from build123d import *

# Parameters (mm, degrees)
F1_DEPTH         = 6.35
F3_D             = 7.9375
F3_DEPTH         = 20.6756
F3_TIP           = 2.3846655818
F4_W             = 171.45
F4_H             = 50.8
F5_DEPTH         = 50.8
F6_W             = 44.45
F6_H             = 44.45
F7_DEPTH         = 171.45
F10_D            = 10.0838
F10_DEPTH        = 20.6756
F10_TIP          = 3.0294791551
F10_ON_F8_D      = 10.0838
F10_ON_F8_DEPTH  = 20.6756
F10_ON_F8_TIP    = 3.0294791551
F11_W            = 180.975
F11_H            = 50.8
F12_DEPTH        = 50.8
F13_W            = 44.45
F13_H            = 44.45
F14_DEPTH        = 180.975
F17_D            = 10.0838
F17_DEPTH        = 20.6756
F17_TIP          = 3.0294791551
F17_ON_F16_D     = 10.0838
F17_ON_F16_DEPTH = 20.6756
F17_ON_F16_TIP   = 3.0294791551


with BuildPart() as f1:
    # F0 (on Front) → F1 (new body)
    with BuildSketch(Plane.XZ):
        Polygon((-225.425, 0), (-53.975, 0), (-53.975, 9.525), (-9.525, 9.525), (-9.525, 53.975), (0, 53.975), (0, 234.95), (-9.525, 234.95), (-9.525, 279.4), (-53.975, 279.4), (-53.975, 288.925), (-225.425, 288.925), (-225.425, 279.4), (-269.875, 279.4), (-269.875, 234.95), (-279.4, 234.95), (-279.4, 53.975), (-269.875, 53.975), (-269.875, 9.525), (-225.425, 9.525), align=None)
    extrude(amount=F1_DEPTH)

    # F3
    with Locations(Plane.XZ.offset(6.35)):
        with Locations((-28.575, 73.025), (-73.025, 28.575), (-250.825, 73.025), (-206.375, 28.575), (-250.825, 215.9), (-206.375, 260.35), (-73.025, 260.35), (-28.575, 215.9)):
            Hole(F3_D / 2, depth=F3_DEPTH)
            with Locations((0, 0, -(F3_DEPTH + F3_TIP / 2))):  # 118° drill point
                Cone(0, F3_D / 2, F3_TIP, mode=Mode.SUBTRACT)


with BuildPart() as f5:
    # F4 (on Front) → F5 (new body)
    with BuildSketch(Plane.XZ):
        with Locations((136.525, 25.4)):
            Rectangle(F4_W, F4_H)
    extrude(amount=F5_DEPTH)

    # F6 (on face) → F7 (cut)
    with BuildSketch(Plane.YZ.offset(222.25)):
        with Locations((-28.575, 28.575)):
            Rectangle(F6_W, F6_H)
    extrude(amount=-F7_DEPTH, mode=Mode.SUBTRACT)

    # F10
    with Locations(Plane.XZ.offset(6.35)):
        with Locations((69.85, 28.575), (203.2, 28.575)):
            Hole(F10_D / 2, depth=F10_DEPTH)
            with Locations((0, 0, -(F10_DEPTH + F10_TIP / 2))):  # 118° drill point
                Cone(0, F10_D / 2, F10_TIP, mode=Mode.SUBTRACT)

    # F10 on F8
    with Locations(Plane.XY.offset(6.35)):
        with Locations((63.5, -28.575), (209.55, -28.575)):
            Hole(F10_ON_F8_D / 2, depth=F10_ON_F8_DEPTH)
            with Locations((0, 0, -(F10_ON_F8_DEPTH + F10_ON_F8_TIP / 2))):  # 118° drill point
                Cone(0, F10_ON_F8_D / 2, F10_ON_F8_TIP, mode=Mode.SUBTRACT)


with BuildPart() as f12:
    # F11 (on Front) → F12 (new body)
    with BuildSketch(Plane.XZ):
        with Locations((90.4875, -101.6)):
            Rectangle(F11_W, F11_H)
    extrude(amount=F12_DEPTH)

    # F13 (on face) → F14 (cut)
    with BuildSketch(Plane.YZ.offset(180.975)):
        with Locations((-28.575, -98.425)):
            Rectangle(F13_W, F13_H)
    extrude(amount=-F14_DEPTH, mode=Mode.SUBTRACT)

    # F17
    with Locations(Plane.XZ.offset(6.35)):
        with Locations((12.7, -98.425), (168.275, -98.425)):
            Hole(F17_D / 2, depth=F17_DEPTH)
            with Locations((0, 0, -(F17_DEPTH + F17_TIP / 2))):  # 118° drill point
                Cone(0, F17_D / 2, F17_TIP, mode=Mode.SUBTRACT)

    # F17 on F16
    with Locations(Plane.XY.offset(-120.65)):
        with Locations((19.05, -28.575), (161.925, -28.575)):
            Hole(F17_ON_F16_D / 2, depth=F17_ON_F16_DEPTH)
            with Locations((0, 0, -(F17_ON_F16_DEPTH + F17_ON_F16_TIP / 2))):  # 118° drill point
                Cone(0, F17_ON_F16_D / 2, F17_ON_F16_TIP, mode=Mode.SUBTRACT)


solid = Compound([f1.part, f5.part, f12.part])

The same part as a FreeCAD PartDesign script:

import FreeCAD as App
import Part
import Sketcher
from FreeCAD import Vector
Q = App.Units.Quantity

doc = App.newDocument("Part")
body = doc.addObject("PartDesign::Body", "Body")

sketch1 = doc.addObject("Sketcher::SketchObject", "Sketch")
body.addObject(sketch1)
sketch1.AttachmentSupport = (doc.XZ_Plane, [""])
sketch1.MapMode = "FlatFace"
sketch1.addGeometry([
    Part.LineSegment(Vector(-225, 0, 0), Vector(-54, 0, 0)),
    Part.LineSegment(Vector(-54, 0, 0), Vector(-54, 10, 0)),
    Part.LineSegment(Vector(-54, 10, 0), Vector(-10, 10, 0)),
    Part.LineSegment(Vector(-10, 10, 0), Vector(-10, 54, 0)),
    Part.LineSegment(Vector(-10, 54, 0), Vector(0, 54, 0)),
    Part.LineSegment(Vector(0, 54, 0), Vector(0, 235, 0)),
    Part.LineSegment(Vector(0, 235, 0), Vector(-10, 235, 0)),
    Part.LineSegment(Vector(-10, 235, 0), Vector(-10, 279, 0)),
    Part.LineSegment(Vector(-10, 279, 0), Vector(-54, 279, 0)),
    Part.LineSegment(Vector(-54, 279, 0), Vector(-54, 289, 0)),
    Part.LineSegment(Vector(-54, 289, 0), Vector(-225, 289, 0)),
    Part.LineSegment(Vector(-225, 289, 0), Vector(-225, 279, 0)),
    Part.LineSegment(Vector(-225, 279, 0), Vector(-270, 279, 0)),
    Part.LineSegment(Vector(-270, 279, 0), Vector(-270, 235, 0)),
    Part.LineSegment(Vector(-270, 235, 0), Vector(-279, 235, 0)),
    Part.LineSegment(Vector(-279, 235, 0), Vector(-279, 54, 0)),
    Part.LineSegment(Vector(-279, 54, 0), Vector(-270, 54, 0)),
    Part.LineSegment(Vector(-270, 54, 0), Vector(-270, 10, 0)),
    Part.LineSegment(Vector(-270, 10, 0), Vector(-225, 10, 0)),
    Part.LineSegment(Vector(-225, 10, 0), Vector(-225, 0, 0)),
], False)
sketch1.addConstraint([
    Sketcher.Constraint("Coincident", 0, 2, 1, 1),
    Sketcher.Constraint("Coincident", 1, 2, 2, 1),
    Sketcher.Constraint("Coincident", 2, 2, 3, 1),
    Sketcher.Constraint("Coincident", 3, 2, 4, 1),
    Sketcher.Constraint("Coincident", 4, 2, 5, 1),
    Sketcher.Constraint("Coincident", 5, 2, 6, 1),
    Sketcher.Constraint("Coincident", 6, 2, 7, 1),
    Sketcher.Constraint("Coincident", 7, 2, 8, 1),
    Sketcher.Constraint("Coincident", 8, 2, 9, 1),
    Sketcher.Constraint("Coincident", 9, 2, 10, 1),
    Sketcher.Constraint("Coincident", 10, 2, 11, 1),
    Sketcher.Constraint("Coincident", 11, 2, 12, 1),
    Sketcher.Constraint("Coincident", 12, 2, 13, 1),
    Sketcher.Constraint("Coincident", 13, 2, 14, 1),
    Sketcher.Constraint("Coincident", 14, 2, 15, 1),
    Sketcher.Constraint("Coincident", 15, 2, 16, 1),
    Sketcher.Constraint("Coincident", 16, 2, 17, 1),
    Sketcher.Constraint("Coincident", 17, 2, 18, 1),
    Sketcher.Constraint("Coincident", 18, 2, 19, 1),
    Sketcher.Constraint("Coincident", 19, 2, 0, 1),
    Sketcher.Constraint("Horizontal", 0),
    Sketcher.Constraint("Vertical", 1),
    Sketcher.Constraint("Horizontal", 2),
    Sketcher.Constraint("Vertical", 3),
    Sketcher.Constraint("Horizontal", 4),
    Sketcher.Constraint("Vertical", 5),
    Sketcher.Constraint("Horizontal", 6),
    Sketcher.Constraint("Vertical", 7),
    Sketcher.Constraint("Horizontal", 8),
    Sketcher.Constraint("Vertical", 9),
    Sketcher.Constraint("Horizontal", 10),
    Sketcher.Constraint("Vertical", 11),
    Sketcher.Constraint("Horizontal", 12),
    Sketcher.Constraint("Vertical", 13),
    Sketcher.Constraint("Horizontal", 14),
    Sketcher.Constraint("Vertical", 15),
    Sketcher.Constraint("Horizontal", 16),
    Sketcher.Constraint("Vertical", 17),
    Sketcher.Constraint("Horizontal", 18),
    Sketcher.Constraint("Vertical", 19),
    Sketcher.Constraint("PointOnObject", 0, 2, -1),
    Sketcher.Constraint("PointOnObject", 4, 2, -2),
    Sketcher.Constraint("Horizontal", 8, 2, 11, 2),
    Sketcher.Constraint("Horizontal", 6, 2, 13, 2),
    Sketcher.Constraint("Horizontal", 4, 2, 15, 2),
    Sketcher.Constraint("Horizontal", 2, 2, 17, 2),
    Sketcher.Constraint("Vertical", 3, 2, 6, 2),
    Sketcher.Constraint("Vertical", 1, 2, 8, 2),
    Sketcher.Constraint("Vertical", 13, 2, 16, 2),
    Sketcher.Constraint("Vertical", 11, 2, 18, 2),
    Sketcher.Constraint("Equal", 8, 12),
    Sketcher.Constraint("Equal", 6, 14),
    Sketcher.Constraint("Equal", 16, 1),
    Sketcher.Constraint("Equal", 18, 3),
    Sketcher.Constraint("Equal", 3, 7),
    Sketcher.Constraint("Equal", 1, 9),
    Sketcher.Constraint("DistanceY", -1, 1, 7, 2, Q("11 in")),
    Sketcher.Constraint("DistanceX", 14, 2, -1, 1, Q("11 in")),
    Sketcher.Constraint("DistanceX", 0, 1, 0, 2, Q("6.75 in")),
    Sketcher.Constraint("DistanceX", 2, 1, 2, 2, Q("1.75 in")),
])
pad1 = doc.addObject("PartDesign::Pad", "Pad")
body.addObject(pad1)
pad1.Profile = sketch1
pad1.Length = Q("0.25 in")

sketch2 = doc.addObject("Sketcher::SketchObject", "Sketch001")
body.addObject(sketch2)
sketch2.AttachmentSupport = (doc.XZ_Plane, [""])
sketch2.MapMode = "FlatFace"
sketch2.AttachmentOffset = App.Placement(Vector(0, 0, 0.25 * 25.4), App.Rotation())
sketch2.addGeometry([
    Part.Circle(Vector(-28.6, 73, 0), Vector(0, 0, 1), 4),
    Part.Circle(Vector(-73, 28.6, 0), Vector(0, 0, 1), 4),
    Part.Circle(Vector(-250.8, 73, 0), Vector(0, 0, 1), 4),
    Part.Circle(Vector(-206.4, 28.6, 0), Vector(0, 0, 1), 4),
    Part.Circle(Vector(-250.8, 215.9, 0), Vector(0, 0, 1), 4),
    Part.Circle(Vector(-206.4, 260.4, 0), Vector(0, 0, 1), 4),
    Part.Circle(Vector(-73, 260.4, 0), Vector(0, 0, 1), 4),
    Part.Circle(Vector(-28.6, 215.9, 0), Vector(0, 0, 1), 4),
], False)
sketch2.addConstraint([
    Sketcher.Constraint("Equal", 0, 1),
    Sketcher.Constraint("Equal", 1, 2),
    Sketcher.Constraint("Equal", 2, 3),
    Sketcher.Constraint("Equal", 3, 4),
    Sketcher.Constraint("Equal", 4, 5),
    Sketcher.Constraint("Equal", 5, 6),
    Sketcher.Constraint("Equal", 6, 7),
    Sketcher.Constraint("Horizontal", 0, 3, 2, 3),
    Sketcher.Constraint("Horizontal", 1, 3, 3, 3),
    Sketcher.Constraint("Horizontal", 5, 3, 6, 3),
    Sketcher.Constraint("Horizontal", 4, 3, 7, 3),
    Sketcher.Constraint("Vertical", 2, 3, 4, 3),
    Sketcher.Constraint("Vertical", 3, 3, 5, 3),
    Sketcher.Constraint("Vertical", 1, 3, 6, 3),
    Sketcher.Constraint("Vertical", 0, 3, 7, 3),
    Sketcher.Constraint("Diameter", 0, Q("0.3125 in")),
    Sketcher.Constraint("DistanceX", 2, 3, 1, 3, Q("7 in")),
    Sketcher.Constraint("DistanceX", 3, 3, 0, 3, Q("7 in")),
    Sketcher.Constraint("DistanceY", -1, 1, 4, 3, Q("8.5 in")),
    Sketcher.Constraint("DistanceY", -1, 1, 5, 3, Q("10.25 in")),
    Sketcher.Constraint("DistanceX", 1, 3, 0, 3, Q("1.75 in")),
    Sketcher.Constraint("DistanceY", 1, 3, 0, 3, Q("1.75 in")),
    Sketcher.Constraint("DistanceX", 0, 3, -1, 1, Q("1.125 in")),
    Sketcher.Constraint("DistanceY", -1, 1, 0, 3, Q("2.875 in")),
])
doc.recompute()
hole = doc.addObject("PartDesign::Hole", "Hole")
body.addObject(hole)
hole.Profile = sketch2
hole.ThreadType = "None"
hole.Diameter = Q("0.3125 in")
hole.DepthType = "Dimension"
hole.Depth = Q("0.814 in")
hole.DrillPoint = "Angled"
hole.DrillPointAngle = 118
body2 = doc.addObject("PartDesign::Body", "Body001")

sketch3 = doc.addObject("Sketcher::SketchObject", "Sketch002")
body2.addObject(sketch3)
sketch3.AttachmentSupport = (doc.getObject("XZ_Plane001"), [""])
sketch3.MapMode = "FlatFace"
sketch3.addGeometry([
    Part.LineSegment(Vector(51, 51, 0), Vector(51, 0, 0)),
    Part.LineSegment(Vector(51, 0, 0), Vector(222, 0, 0)),
    Part.LineSegment(Vector(222, 0, 0), Vector(222, 51, 0)),
    Part.LineSegment(Vector(222, 51, 0), Vector(51, 51, 0)),
], False)
sketch3.addConstraint([
    Sketcher.Constraint("Coincident", 0, 2, 1, 1),
    Sketcher.Constraint("Coincident", 1, 2, 2, 1),
    Sketcher.Constraint("Coincident", 2, 2, 3, 1),
    Sketcher.Constraint("Coincident", 3, 2, 0, 1),
    Sketcher.Constraint("Vertical", 0),
    Sketcher.Constraint("Horizontal", 1),
    Sketcher.Constraint("Vertical", 2),
    Sketcher.Constraint("Horizontal", 3),
    Sketcher.Constraint("PointOnObject", 0, 2, -1),
    Sketcher.Constraint("DistanceY", 0, 2, 0, 1, Q("2 in")),
    Sketcher.Constraint("DistanceX", -1, 1, 0, 2, Q("2 in")),
    Sketcher.Constraint("DistanceX", 1, 1, 1, 2, Q("6.75 in")),
])
pad2 = doc.addObject("PartDesign::Pad", "Pad001")
body2.addObject(pad2)
pad2.Profile = sketch3
pad2.Length = Q("2 in")

sketch4 = doc.addObject("Sketcher::SketchObject", "Sketch003")
body2.addObject(sketch4)
sketch4.AttachmentSupport = (doc.getObject("YZ_Plane001"), [""])
sketch4.MapMode = "FlatFace"
sketch4.AttachmentOffset = App.Placement(Vector(0, 0, 8.75 * 25.4), App.Rotation())
sketch4.addGeometry([
    Part.LineSegment(Vector(-51, 51, 0), Vector(-51, 6, 0)),
    Part.LineSegment(Vector(-51, 6, 0), Vector(-6, 6, 0)),
    Part.LineSegment(Vector(-6, 6, 0), Vector(-6, 51, 0)),
    Part.LineSegment(Vector(-6, 51, 0), Vector(-51, 51, 0)),
], False)
sketch4.addConstraint([
    Sketcher.Constraint("Coincident", 0, 2, 1, 1),
    Sketcher.Constraint("Coincident", 1, 2, 2, 1),
    Sketcher.Constraint("Coincident", 2, 2, 3, 1),
    Sketcher.Constraint("Coincident", 3, 2, 0, 1),
    Sketcher.Constraint("Vertical", 0),
    Sketcher.Constraint("Horizontal", 1),
    Sketcher.Constraint("Vertical", 2),
    Sketcher.Constraint("Horizontal", 3),
    Sketcher.Constraint("Equal", 3, 0),
    Sketcher.Constraint("DistanceX", 0, 2, -1, 1, Q("2 in")),
    Sketcher.Constraint("DistanceY", -1, 1, 2, 2, Q("2 in")),
    Sketcher.Constraint("DistanceX", 1, 1, 1, 2, Q("1.75 in")),
])
pocket1 = doc.addObject("PartDesign::Pocket", "Pocket")
body2.addObject(pocket1)
pocket1.Profile = sketch4
pocket1.Length = Q("6.75 in")

sketch5 = doc.addObject("Sketcher::SketchObject", "Sketch004")
body2.addObject(sketch5)
sketch5.AttachmentSupport = (doc.getObject("XZ_Plane001"), [""])
sketch5.MapMode = "FlatFace"
sketch5.AttachmentOffset = App.Placement(Vector(0, 0, 0.25 * 25.4), App.Rotation())
sketch5.addGeometry([
    Part.Circle(Vector(70, 29, 0), Vector(0, 0, 1), 5),
    Part.Circle(Vector(203, 29, 0), Vector(0, 0, 1), 5),
], False)
sketch5.addConstraint([
    Sketcher.Constraint("Equal", 0, 1),
    Sketcher.Constraint("Horizontal", 0, 3, 1, 3),
    Sketcher.Constraint("Diameter", 0, Q("0.397 in")),
    Sketcher.Constraint("DistanceX", -1, 1, 1, 3, Q("8 in")),
    Sketcher.Constraint("DistanceX", -1, 1, 0, 3, Q("2.75 in")),
    Sketcher.Constraint("DistanceY", -1, 1, 0, 3, Q("1.125 in")),
])
doc.recompute()
hole2 = doc.addObject("PartDesign::Hole", "Hole001")
body2.addObject(hole2)
hole2.Profile = sketch5
hole2.ThreadType = "None"
hole2.Diameter = Q("0.397 in")
hole2.DepthType = "Dimension"
hole2.Depth = Q("0.814 in")
hole2.DrillPoint = "Angled"
hole2.DrillPointAngle = 118

sketch6 = doc.addObject("Sketcher::SketchObject", "Sketch005")
body2.addObject(sketch6)
sketch6.AttachmentSupport = (doc.getObject("XY_Plane001"), [""])
sketch6.MapMode = "FlatFace"
sketch6.AttachmentOffset = App.Placement(Vector(0, 0, 0.25 * 25.4), App.Rotation())
sketch6.addGeometry([
    Part.Circle(Vector(64, -29, 0), Vector(0, 0, 1), 5),
    Part.Circle(Vector(210, -29, 0), Vector(0, 0, 1), 5),
], False)
sketch6.addConstraint([
    Sketcher.Constraint("Equal", 0, 1),
    Sketcher.Constraint("Horizontal", 0, 3, 1, 3),
    Sketcher.Constraint("Diameter", 0, Q("0.397 in")),
    Sketcher.Constraint("DistanceX", -1, 1, 0, 3, Q("2.5 in")),
    Sketcher.Constraint("DistanceX", -1, 1, 1, 3, Q("8.25 in")),
    Sketcher.Constraint("DistanceY", 0, 3, -1, 1, Q("1.125 in")),
])
doc.recompute()
hole3 = doc.addObject("PartDesign::Hole", "Hole002")
body2.addObject(hole3)
hole3.Profile = sketch6
hole3.ThreadType = "None"
hole3.Diameter = Q("0.397 in")
hole3.DepthType = "Dimension"
hole3.Depth = Q("0.814 in")
hole3.DrillPoint = "Angled"
hole3.DrillPointAngle = 118
body3 = doc.addObject("PartDesign::Body", "Body002")

sketch7 = doc.addObject("Sketcher::SketchObject", "Sketch006")
body3.addObject(sketch7)
sketch7.AttachmentSupport = (doc.getObject("XZ_Plane002"), [""])
sketch7.MapMode = "FlatFace"
sketch7.addGeometry([
    Part.LineSegment(Vector(0, -76, 0), Vector(0, -127, 0)),
    Part.LineSegment(Vector(0, -127, 0), Vector(181, -127, 0)),
    Part.LineSegment(Vector(181, -127, 0), Vector(181, -76, 0)),
    Part.LineSegment(Vector(181, -76, 0), Vector(0, -76, 0)),
], False)
sketch7.addConstraint([
    Sketcher.Constraint("Coincident", 0, 2, 1, 1),
    Sketcher.Constraint("Coincident", 1, 2, 2, 1),
    Sketcher.Constraint("Coincident", 2, 2, 3, 1),
    Sketcher.Constraint("Coincident", 3, 2, 0, 1),
    Sketcher.Constraint("Vertical", 0),
    Sketcher.Constraint("Horizontal", 1),
    Sketcher.Constraint("Vertical", 2),
    Sketcher.Constraint("Horizontal", 3),
    Sketcher.Constraint("PointOnObject", 0, 2, -2),
    Sketcher.Constraint("DistanceY", 0, 2, 0, 1, Q("2 in")),
    Sketcher.Constraint("DistanceY", 0, 2, -1, 1, Q("5 in")),
    Sketcher.Constraint("DistanceX", 1, 1, 1, 2, Q("7.125 in")),
])
pad3 = doc.addObject("PartDesign::Pad", "Pad002")
body3.addObject(pad3)
pad3.Profile = sketch7
pad3.Length = Q("2 in")

sketch8 = doc.addObject("Sketcher::SketchObject", "Sketch007")
body3.addObject(sketch8)
sketch8.AttachmentSupport = (doc.getObject("YZ_Plane002"), [""])
sketch8.MapMode = "FlatFace"
sketch8.AttachmentOffset = App.Placement(Vector(0, 0, 7.125 * 25.4), App.Rotation())
sketch8.addGeometry([
    Part.LineSegment(Vector(-51, -76, 0), Vector(-51, -121, 0)),
    Part.LineSegment(Vector(-51, -121, 0), Vector(-6, -121, 0)),
    Part.LineSegment(Vector(-6, -121, 0), Vector(-6, -76, 0)),
    Part.LineSegment(Vector(-6, -76, 0), Vector(-51, -76, 0)),
], False)
sketch8.addConstraint([
    Sketcher.Constraint("Coincident", 0, 2, 1, 1),
    Sketcher.Constraint("Coincident", 1, 2, 2, 1),
    Sketcher.Constraint("Coincident", 2, 2, 3, 1),
    Sketcher.Constraint("Coincident", 3, 2, 0, 1),
    Sketcher.Constraint("Vertical", 0),
    Sketcher.Constraint("Horizontal", 1),
    Sketcher.Constraint("Vertical", 2),
    Sketcher.Constraint("Horizontal", 3),
    Sketcher.Constraint("Equal", 3, 0),
    Sketcher.Constraint("DistanceX", 0, 2, -1, 1, Q("2 in")),
    Sketcher.Constraint("DistanceY", 2, 2, -1, 1, Q("3 in")),
    Sketcher.Constraint("DistanceX", 1, 1, 1, 2, Q("1.75 in")),
])
pocket2 = doc.addObject("PartDesign::Pocket", "Pocket001")
body3.addObject(pocket2)
pocket2.Profile = sketch8
pocket2.Length = Q("7.125 in")

sketch9 = doc.addObject("Sketcher::SketchObject", "Sketch008")
body3.addObject(sketch9)
sketch9.AttachmentSupport = (doc.getObject("XZ_Plane002"), [""])
sketch9.MapMode = "FlatFace"
sketch9.AttachmentOffset = App.Placement(Vector(0, 0, 0.25 * 25.4), App.Rotation())
sketch9.addGeometry([
    Part.Circle(Vector(13, -98, 0), Vector(0, 0, 1), 5),
    Part.Circle(Vector(168, -98, 0), Vector(0, 0, 1), 5),
], False)
sketch9.addConstraint([
    Sketcher.Constraint("Equal", 0, 1),
    Sketcher.Constraint("Horizontal", 0, 3, 1, 3),
    Sketcher.Constraint("Diameter", 0, Q("0.397 in")),
    Sketcher.Constraint("DistanceX", -1, 1, 0, 3, Q("0.5 in")),
    Sketcher.Constraint("DistanceY", 0, 3, -1, 1, Q("3.875 in")),
    Sketcher.Constraint("DistanceX", -1, 1, 1, 3, Q("6.625 in")),
])
doc.recompute()
hole4 = doc.addObject("PartDesign::Hole", "Hole003")
body3.addObject(hole4)
hole4.Profile = sketch9
hole4.ThreadType = "None"
hole4.Diameter = Q("0.397 in")
hole4.DepthType = "Dimension"
hole4.Depth = Q("0.814 in")
hole4.DrillPoint = "Angled"
hole4.DrillPointAngle = 118

sketch10 = doc.addObject("Sketcher::SketchObject", "Sketch009")
body3.addObject(sketch10)
sketch10.AttachmentSupport = (doc.getObject("XY_Plane002"), [""])
sketch10.MapMode = "FlatFace"
sketch10.AttachmentOffset = App.Placement(Vector(0, 0, -4.75 * 25.4), App.Rotation())
sketch10.addGeometry([
    Part.Circle(Vector(19, -29, 0), Vector(0, 0, 1), 5),
    Part.Circle(Vector(162, -29, 0), Vector(0, 0, 1), 5),
], False)
sketch10.addConstraint([
    Sketcher.Constraint("Equal", 0, 1),
    Sketcher.Constraint("Horizontal", 0, 3, 1, 3),
    Sketcher.Constraint("Diameter", 0, Q("0.397 in")),
    Sketcher.Constraint("DistanceX", -1, 1, 0, 3, Q("0.75 in")),
    Sketcher.Constraint("DistanceY", 0, 3, -1, 1, Q("1.125 in")),
    Sketcher.Constraint("DistanceX", -1, 1, 1, 3, Q("6.375 in")),
])
doc.recompute()
hole5 = doc.addObject("PartDesign::Hole", "Hole004")
body3.addObject(hole5)
hole5.Profile = sketch10
hole5.ThreadType = "None"
hole5.Diameter = Q("0.397 in")
hole5.DepthType = "Dimension"
hole5.Depth = Q("0.814 in")
hole5.DrillPoint = "Angled"
hole5.DrillPointAngle = 118

doc.recompute()
